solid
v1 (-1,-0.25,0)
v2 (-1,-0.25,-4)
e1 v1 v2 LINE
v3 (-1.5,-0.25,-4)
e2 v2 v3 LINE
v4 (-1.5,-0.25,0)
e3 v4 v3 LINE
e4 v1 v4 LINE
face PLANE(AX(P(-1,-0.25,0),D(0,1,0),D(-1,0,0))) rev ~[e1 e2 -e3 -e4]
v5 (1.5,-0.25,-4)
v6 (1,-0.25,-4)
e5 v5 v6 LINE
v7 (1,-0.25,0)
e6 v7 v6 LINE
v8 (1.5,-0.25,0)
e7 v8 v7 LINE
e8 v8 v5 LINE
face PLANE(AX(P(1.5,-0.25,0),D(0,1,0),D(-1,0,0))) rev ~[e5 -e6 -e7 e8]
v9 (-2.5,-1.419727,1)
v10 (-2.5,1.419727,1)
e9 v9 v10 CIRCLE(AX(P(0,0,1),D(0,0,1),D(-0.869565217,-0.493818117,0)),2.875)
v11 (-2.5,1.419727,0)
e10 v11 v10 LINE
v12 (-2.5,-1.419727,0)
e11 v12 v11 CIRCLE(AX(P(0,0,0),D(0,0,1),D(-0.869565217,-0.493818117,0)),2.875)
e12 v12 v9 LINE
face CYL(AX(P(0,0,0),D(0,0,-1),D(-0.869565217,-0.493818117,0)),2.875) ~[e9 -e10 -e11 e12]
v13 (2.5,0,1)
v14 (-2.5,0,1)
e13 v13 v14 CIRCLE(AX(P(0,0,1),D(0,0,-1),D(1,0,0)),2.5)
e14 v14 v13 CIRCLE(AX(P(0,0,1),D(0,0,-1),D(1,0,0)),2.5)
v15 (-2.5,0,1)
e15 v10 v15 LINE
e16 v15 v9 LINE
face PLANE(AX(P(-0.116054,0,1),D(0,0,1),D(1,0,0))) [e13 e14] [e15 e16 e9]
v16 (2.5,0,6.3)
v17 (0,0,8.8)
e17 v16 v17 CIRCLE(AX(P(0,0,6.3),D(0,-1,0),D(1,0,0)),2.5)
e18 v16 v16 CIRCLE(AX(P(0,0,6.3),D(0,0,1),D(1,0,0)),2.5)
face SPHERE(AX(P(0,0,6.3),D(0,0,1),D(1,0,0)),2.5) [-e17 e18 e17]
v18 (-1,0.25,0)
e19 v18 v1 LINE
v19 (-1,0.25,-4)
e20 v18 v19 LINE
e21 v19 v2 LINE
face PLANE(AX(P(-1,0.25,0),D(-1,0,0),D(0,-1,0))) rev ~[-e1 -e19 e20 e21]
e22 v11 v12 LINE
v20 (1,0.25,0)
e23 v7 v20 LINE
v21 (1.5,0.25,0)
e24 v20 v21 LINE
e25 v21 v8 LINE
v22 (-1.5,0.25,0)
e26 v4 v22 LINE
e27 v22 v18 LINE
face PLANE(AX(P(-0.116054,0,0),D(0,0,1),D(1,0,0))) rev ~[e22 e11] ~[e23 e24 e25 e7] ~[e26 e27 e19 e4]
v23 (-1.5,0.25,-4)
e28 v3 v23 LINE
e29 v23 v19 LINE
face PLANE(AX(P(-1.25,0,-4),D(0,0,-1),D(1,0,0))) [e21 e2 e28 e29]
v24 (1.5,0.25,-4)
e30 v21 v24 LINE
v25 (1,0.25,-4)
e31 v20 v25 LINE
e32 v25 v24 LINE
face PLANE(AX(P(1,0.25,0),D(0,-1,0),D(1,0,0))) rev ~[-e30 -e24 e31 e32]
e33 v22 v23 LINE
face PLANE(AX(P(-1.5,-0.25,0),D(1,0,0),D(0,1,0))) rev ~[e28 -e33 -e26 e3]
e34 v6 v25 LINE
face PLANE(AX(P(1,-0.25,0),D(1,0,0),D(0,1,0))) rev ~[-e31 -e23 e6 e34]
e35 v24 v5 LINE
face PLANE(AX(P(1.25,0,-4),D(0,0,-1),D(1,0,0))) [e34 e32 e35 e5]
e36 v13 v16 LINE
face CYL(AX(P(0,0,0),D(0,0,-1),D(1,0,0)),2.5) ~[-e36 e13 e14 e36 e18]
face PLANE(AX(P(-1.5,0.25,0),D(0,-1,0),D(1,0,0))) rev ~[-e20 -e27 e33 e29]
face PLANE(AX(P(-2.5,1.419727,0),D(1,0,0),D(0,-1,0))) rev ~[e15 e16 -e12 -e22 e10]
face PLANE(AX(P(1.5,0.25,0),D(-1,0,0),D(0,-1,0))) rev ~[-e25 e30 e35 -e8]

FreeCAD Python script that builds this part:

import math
import FreeCAD as App
import Part
import Sketcher


def edges_at(feature, points):
    """Names of the edges that pass closest to the given points."""
    edges = feature.Shape.Edges
    near = lambda p: min(range(len(edges)), key=lambda i: edges[i].distToShape(Part.Vertex(*p))[0])
    return sorted({f"Edge{near(p) + 1}" for p in points})

doc = App.newDocument("Part")
body = doc.addObject("PartDesign::Body", "Body")

# Sketch on XY plane
sketch1 = doc.addObject("Sketcher::SketchObject", "Sketch")
body.addObject(sketch1)
sketch1.AttachmentSupport = (doc.XY_Plane, [""])
sketch1.MapMode = "FlatFace"
sketch1.addGeometry(Part.Circle(App.Vector(0, 0, 0), App.Vector(0, 0, 1), 2.5), False)
sketch1.addConstraint([
    Sketcher.Constraint("Coincident", 0, 3, -1, 1),
    Sketcher.Constraint("Diameter", 0, 5.0),
])
pad1 = doc.addObject("PartDesign::Pad", "Pad")
body.addObject(pad1)
pad1.Profile = sketch1
pad1.Length = 8.8

# Sketch on XY plane
sketch2 = doc.addObject("Sketcher::SketchObject", "Sketch001")
body.addObject(sketch2)
sketch2.AttachmentSupport = (doc.XY_Plane, [""])
sketch2.MapMode = "FlatFace"
sketch2.addGeometry([
    Part.ArcOfCircle(Part.Circle(App.Vector(0, 0, 0), App.Vector(0, 0, 1), 2.875), math.radians(-150.408154), math.radians(150.408154)),
    Part.LineSegment(App.Vector(-2.5, 1.419727, 0), App.Vector(-2.5, -1.419727, 0)),
], False)
sketch2.addConstraint([
    Sketcher.Constraint("Coincident", 0, 1, 1, 2),
    Sketcher.Constraint("Coincident", 1, 1, 0, 2),
    Sketcher.Constraint("Vertical", 1),
    Sketcher.Constraint("Coincident", 0, 3, -1, 1),
    Sketcher.Constraint("Radius", 0, 2.875),
    Sketcher.Constraint("DistanceX", 0, 1, -1, 1, 2.5),
])
pad2 = doc.addObject("PartDesign::Pad", "Pad001")
body.addObject(pad2)
pad2.Profile = sketch2
pad2.Length = 1
doc.recompute()

fillet = doc.addObject("PartDesign::Fillet", "Fillet")
body.addObject(fillet)
fillet.Base = (pad2, edges_at(pad2, [(-2.5, 0, 8.8)]))
fillet.Radius = 2.5

# Sketch on XY plane
sketch3 = doc.addObject("Sketcher::SketchObject", "Sketch002")
body.addObject(sketch3)
sketch3.AttachmentSupport = (doc.XY_Plane, [""])
sketch3.MapMode = "FlatFace"
sketch3.addGeometry([
    Part.LineSegment(App.Vector(1, -0.25, 0), App.Vector(1, 0.25, 0)),  # 0
    Part.LineSegment(App.Vector(1, 0.25, 0), App.Vector(1.5, 0.25, 0)),  # 1
    Part.LineSegment(App.Vector(1.5, 0.25, 0), App.Vector(1.5, -0.25, 0)),  # 2
    Part.LineSegment(App.Vector(1.5, -0.25, 0), App.Vector(1, -0.25, 0)),  # 3
    Part.LineSegment(App.Vector(-1, -0.25, 0), App.Vector(-1.5, -0.25, 0)),  # 4
    Part.LineSegment(App.Vector(-1.5, -0.25, 0), App.Vector(-1.5, 0.25, 0)),  # 5
    Part.LineSegment(App.Vector(-1.5, 0.25, 0), App.Vector(-1, 0.25, 0)),  # 6
    Part.LineSegment(App.Vector(-1, 0.25, 0), App.Vector(-1, -0.25, 0)),  # 7
], False)
sketch3.addConstraint([
    Sketcher.Constraint("Coincident", 0, 2, 1, 1),
    Sketcher.Constraint("Coincident", 1, 2, 2, 1),
    Sketcher.Constraint("Coincident", 2, 2, 3, 1),
    Sketcher.Constraint("Coincident", 3, 2, 0, 1),
    Sketcher.Constraint("Coincident", 4, 2, 5, 1),
    Sketcher.Constraint("Coincident", 5, 2, 6, 1),
    Sketcher.Constraint("Coincident", 6, 2, 7, 1),
    Sketcher.Constraint("Coincident", 7, 2, 4, 1),
    Sketcher.Constraint("Vertical", 0),
    Sketcher.Constraint("Horizontal", 1),
    Sketcher.Constraint("Vertical", 2),
    Sketcher.Constraint("Horizontal", 3),
    Sketcher.Constraint("Horizontal", 4),
    Sketcher.Constraint("Vertical", 5),
    Sketcher.Constraint("Horizontal", 6),
    Sketcher.Constraint("Vertical", 7),
    Sketcher.Constraint("Symmetric", 1, 2, 4, 2, -1, 1),
    Sketcher.Constraint("Symmetric", 3, 2, 6, 2, -1, 1),
    Sketcher.Constraint("Horizontal", 3, 2, 4, 2),
    Sketcher.Constraint("Equal", 6, 0),
    Sketcher.Constraint("DistanceX", 1, 1, 1, 2, 0.5),
    Sketcher.Constraint("DistanceX", -1, 1, 0, 2, 1.0),
])
pad3 = doc.addObject("PartDesign::Pad", "Pad002")
body.addObject(pad3)
pad3.Profile = sketch3
pad3.Length = 4
pad3.Reversed = True

doc.recompute()
